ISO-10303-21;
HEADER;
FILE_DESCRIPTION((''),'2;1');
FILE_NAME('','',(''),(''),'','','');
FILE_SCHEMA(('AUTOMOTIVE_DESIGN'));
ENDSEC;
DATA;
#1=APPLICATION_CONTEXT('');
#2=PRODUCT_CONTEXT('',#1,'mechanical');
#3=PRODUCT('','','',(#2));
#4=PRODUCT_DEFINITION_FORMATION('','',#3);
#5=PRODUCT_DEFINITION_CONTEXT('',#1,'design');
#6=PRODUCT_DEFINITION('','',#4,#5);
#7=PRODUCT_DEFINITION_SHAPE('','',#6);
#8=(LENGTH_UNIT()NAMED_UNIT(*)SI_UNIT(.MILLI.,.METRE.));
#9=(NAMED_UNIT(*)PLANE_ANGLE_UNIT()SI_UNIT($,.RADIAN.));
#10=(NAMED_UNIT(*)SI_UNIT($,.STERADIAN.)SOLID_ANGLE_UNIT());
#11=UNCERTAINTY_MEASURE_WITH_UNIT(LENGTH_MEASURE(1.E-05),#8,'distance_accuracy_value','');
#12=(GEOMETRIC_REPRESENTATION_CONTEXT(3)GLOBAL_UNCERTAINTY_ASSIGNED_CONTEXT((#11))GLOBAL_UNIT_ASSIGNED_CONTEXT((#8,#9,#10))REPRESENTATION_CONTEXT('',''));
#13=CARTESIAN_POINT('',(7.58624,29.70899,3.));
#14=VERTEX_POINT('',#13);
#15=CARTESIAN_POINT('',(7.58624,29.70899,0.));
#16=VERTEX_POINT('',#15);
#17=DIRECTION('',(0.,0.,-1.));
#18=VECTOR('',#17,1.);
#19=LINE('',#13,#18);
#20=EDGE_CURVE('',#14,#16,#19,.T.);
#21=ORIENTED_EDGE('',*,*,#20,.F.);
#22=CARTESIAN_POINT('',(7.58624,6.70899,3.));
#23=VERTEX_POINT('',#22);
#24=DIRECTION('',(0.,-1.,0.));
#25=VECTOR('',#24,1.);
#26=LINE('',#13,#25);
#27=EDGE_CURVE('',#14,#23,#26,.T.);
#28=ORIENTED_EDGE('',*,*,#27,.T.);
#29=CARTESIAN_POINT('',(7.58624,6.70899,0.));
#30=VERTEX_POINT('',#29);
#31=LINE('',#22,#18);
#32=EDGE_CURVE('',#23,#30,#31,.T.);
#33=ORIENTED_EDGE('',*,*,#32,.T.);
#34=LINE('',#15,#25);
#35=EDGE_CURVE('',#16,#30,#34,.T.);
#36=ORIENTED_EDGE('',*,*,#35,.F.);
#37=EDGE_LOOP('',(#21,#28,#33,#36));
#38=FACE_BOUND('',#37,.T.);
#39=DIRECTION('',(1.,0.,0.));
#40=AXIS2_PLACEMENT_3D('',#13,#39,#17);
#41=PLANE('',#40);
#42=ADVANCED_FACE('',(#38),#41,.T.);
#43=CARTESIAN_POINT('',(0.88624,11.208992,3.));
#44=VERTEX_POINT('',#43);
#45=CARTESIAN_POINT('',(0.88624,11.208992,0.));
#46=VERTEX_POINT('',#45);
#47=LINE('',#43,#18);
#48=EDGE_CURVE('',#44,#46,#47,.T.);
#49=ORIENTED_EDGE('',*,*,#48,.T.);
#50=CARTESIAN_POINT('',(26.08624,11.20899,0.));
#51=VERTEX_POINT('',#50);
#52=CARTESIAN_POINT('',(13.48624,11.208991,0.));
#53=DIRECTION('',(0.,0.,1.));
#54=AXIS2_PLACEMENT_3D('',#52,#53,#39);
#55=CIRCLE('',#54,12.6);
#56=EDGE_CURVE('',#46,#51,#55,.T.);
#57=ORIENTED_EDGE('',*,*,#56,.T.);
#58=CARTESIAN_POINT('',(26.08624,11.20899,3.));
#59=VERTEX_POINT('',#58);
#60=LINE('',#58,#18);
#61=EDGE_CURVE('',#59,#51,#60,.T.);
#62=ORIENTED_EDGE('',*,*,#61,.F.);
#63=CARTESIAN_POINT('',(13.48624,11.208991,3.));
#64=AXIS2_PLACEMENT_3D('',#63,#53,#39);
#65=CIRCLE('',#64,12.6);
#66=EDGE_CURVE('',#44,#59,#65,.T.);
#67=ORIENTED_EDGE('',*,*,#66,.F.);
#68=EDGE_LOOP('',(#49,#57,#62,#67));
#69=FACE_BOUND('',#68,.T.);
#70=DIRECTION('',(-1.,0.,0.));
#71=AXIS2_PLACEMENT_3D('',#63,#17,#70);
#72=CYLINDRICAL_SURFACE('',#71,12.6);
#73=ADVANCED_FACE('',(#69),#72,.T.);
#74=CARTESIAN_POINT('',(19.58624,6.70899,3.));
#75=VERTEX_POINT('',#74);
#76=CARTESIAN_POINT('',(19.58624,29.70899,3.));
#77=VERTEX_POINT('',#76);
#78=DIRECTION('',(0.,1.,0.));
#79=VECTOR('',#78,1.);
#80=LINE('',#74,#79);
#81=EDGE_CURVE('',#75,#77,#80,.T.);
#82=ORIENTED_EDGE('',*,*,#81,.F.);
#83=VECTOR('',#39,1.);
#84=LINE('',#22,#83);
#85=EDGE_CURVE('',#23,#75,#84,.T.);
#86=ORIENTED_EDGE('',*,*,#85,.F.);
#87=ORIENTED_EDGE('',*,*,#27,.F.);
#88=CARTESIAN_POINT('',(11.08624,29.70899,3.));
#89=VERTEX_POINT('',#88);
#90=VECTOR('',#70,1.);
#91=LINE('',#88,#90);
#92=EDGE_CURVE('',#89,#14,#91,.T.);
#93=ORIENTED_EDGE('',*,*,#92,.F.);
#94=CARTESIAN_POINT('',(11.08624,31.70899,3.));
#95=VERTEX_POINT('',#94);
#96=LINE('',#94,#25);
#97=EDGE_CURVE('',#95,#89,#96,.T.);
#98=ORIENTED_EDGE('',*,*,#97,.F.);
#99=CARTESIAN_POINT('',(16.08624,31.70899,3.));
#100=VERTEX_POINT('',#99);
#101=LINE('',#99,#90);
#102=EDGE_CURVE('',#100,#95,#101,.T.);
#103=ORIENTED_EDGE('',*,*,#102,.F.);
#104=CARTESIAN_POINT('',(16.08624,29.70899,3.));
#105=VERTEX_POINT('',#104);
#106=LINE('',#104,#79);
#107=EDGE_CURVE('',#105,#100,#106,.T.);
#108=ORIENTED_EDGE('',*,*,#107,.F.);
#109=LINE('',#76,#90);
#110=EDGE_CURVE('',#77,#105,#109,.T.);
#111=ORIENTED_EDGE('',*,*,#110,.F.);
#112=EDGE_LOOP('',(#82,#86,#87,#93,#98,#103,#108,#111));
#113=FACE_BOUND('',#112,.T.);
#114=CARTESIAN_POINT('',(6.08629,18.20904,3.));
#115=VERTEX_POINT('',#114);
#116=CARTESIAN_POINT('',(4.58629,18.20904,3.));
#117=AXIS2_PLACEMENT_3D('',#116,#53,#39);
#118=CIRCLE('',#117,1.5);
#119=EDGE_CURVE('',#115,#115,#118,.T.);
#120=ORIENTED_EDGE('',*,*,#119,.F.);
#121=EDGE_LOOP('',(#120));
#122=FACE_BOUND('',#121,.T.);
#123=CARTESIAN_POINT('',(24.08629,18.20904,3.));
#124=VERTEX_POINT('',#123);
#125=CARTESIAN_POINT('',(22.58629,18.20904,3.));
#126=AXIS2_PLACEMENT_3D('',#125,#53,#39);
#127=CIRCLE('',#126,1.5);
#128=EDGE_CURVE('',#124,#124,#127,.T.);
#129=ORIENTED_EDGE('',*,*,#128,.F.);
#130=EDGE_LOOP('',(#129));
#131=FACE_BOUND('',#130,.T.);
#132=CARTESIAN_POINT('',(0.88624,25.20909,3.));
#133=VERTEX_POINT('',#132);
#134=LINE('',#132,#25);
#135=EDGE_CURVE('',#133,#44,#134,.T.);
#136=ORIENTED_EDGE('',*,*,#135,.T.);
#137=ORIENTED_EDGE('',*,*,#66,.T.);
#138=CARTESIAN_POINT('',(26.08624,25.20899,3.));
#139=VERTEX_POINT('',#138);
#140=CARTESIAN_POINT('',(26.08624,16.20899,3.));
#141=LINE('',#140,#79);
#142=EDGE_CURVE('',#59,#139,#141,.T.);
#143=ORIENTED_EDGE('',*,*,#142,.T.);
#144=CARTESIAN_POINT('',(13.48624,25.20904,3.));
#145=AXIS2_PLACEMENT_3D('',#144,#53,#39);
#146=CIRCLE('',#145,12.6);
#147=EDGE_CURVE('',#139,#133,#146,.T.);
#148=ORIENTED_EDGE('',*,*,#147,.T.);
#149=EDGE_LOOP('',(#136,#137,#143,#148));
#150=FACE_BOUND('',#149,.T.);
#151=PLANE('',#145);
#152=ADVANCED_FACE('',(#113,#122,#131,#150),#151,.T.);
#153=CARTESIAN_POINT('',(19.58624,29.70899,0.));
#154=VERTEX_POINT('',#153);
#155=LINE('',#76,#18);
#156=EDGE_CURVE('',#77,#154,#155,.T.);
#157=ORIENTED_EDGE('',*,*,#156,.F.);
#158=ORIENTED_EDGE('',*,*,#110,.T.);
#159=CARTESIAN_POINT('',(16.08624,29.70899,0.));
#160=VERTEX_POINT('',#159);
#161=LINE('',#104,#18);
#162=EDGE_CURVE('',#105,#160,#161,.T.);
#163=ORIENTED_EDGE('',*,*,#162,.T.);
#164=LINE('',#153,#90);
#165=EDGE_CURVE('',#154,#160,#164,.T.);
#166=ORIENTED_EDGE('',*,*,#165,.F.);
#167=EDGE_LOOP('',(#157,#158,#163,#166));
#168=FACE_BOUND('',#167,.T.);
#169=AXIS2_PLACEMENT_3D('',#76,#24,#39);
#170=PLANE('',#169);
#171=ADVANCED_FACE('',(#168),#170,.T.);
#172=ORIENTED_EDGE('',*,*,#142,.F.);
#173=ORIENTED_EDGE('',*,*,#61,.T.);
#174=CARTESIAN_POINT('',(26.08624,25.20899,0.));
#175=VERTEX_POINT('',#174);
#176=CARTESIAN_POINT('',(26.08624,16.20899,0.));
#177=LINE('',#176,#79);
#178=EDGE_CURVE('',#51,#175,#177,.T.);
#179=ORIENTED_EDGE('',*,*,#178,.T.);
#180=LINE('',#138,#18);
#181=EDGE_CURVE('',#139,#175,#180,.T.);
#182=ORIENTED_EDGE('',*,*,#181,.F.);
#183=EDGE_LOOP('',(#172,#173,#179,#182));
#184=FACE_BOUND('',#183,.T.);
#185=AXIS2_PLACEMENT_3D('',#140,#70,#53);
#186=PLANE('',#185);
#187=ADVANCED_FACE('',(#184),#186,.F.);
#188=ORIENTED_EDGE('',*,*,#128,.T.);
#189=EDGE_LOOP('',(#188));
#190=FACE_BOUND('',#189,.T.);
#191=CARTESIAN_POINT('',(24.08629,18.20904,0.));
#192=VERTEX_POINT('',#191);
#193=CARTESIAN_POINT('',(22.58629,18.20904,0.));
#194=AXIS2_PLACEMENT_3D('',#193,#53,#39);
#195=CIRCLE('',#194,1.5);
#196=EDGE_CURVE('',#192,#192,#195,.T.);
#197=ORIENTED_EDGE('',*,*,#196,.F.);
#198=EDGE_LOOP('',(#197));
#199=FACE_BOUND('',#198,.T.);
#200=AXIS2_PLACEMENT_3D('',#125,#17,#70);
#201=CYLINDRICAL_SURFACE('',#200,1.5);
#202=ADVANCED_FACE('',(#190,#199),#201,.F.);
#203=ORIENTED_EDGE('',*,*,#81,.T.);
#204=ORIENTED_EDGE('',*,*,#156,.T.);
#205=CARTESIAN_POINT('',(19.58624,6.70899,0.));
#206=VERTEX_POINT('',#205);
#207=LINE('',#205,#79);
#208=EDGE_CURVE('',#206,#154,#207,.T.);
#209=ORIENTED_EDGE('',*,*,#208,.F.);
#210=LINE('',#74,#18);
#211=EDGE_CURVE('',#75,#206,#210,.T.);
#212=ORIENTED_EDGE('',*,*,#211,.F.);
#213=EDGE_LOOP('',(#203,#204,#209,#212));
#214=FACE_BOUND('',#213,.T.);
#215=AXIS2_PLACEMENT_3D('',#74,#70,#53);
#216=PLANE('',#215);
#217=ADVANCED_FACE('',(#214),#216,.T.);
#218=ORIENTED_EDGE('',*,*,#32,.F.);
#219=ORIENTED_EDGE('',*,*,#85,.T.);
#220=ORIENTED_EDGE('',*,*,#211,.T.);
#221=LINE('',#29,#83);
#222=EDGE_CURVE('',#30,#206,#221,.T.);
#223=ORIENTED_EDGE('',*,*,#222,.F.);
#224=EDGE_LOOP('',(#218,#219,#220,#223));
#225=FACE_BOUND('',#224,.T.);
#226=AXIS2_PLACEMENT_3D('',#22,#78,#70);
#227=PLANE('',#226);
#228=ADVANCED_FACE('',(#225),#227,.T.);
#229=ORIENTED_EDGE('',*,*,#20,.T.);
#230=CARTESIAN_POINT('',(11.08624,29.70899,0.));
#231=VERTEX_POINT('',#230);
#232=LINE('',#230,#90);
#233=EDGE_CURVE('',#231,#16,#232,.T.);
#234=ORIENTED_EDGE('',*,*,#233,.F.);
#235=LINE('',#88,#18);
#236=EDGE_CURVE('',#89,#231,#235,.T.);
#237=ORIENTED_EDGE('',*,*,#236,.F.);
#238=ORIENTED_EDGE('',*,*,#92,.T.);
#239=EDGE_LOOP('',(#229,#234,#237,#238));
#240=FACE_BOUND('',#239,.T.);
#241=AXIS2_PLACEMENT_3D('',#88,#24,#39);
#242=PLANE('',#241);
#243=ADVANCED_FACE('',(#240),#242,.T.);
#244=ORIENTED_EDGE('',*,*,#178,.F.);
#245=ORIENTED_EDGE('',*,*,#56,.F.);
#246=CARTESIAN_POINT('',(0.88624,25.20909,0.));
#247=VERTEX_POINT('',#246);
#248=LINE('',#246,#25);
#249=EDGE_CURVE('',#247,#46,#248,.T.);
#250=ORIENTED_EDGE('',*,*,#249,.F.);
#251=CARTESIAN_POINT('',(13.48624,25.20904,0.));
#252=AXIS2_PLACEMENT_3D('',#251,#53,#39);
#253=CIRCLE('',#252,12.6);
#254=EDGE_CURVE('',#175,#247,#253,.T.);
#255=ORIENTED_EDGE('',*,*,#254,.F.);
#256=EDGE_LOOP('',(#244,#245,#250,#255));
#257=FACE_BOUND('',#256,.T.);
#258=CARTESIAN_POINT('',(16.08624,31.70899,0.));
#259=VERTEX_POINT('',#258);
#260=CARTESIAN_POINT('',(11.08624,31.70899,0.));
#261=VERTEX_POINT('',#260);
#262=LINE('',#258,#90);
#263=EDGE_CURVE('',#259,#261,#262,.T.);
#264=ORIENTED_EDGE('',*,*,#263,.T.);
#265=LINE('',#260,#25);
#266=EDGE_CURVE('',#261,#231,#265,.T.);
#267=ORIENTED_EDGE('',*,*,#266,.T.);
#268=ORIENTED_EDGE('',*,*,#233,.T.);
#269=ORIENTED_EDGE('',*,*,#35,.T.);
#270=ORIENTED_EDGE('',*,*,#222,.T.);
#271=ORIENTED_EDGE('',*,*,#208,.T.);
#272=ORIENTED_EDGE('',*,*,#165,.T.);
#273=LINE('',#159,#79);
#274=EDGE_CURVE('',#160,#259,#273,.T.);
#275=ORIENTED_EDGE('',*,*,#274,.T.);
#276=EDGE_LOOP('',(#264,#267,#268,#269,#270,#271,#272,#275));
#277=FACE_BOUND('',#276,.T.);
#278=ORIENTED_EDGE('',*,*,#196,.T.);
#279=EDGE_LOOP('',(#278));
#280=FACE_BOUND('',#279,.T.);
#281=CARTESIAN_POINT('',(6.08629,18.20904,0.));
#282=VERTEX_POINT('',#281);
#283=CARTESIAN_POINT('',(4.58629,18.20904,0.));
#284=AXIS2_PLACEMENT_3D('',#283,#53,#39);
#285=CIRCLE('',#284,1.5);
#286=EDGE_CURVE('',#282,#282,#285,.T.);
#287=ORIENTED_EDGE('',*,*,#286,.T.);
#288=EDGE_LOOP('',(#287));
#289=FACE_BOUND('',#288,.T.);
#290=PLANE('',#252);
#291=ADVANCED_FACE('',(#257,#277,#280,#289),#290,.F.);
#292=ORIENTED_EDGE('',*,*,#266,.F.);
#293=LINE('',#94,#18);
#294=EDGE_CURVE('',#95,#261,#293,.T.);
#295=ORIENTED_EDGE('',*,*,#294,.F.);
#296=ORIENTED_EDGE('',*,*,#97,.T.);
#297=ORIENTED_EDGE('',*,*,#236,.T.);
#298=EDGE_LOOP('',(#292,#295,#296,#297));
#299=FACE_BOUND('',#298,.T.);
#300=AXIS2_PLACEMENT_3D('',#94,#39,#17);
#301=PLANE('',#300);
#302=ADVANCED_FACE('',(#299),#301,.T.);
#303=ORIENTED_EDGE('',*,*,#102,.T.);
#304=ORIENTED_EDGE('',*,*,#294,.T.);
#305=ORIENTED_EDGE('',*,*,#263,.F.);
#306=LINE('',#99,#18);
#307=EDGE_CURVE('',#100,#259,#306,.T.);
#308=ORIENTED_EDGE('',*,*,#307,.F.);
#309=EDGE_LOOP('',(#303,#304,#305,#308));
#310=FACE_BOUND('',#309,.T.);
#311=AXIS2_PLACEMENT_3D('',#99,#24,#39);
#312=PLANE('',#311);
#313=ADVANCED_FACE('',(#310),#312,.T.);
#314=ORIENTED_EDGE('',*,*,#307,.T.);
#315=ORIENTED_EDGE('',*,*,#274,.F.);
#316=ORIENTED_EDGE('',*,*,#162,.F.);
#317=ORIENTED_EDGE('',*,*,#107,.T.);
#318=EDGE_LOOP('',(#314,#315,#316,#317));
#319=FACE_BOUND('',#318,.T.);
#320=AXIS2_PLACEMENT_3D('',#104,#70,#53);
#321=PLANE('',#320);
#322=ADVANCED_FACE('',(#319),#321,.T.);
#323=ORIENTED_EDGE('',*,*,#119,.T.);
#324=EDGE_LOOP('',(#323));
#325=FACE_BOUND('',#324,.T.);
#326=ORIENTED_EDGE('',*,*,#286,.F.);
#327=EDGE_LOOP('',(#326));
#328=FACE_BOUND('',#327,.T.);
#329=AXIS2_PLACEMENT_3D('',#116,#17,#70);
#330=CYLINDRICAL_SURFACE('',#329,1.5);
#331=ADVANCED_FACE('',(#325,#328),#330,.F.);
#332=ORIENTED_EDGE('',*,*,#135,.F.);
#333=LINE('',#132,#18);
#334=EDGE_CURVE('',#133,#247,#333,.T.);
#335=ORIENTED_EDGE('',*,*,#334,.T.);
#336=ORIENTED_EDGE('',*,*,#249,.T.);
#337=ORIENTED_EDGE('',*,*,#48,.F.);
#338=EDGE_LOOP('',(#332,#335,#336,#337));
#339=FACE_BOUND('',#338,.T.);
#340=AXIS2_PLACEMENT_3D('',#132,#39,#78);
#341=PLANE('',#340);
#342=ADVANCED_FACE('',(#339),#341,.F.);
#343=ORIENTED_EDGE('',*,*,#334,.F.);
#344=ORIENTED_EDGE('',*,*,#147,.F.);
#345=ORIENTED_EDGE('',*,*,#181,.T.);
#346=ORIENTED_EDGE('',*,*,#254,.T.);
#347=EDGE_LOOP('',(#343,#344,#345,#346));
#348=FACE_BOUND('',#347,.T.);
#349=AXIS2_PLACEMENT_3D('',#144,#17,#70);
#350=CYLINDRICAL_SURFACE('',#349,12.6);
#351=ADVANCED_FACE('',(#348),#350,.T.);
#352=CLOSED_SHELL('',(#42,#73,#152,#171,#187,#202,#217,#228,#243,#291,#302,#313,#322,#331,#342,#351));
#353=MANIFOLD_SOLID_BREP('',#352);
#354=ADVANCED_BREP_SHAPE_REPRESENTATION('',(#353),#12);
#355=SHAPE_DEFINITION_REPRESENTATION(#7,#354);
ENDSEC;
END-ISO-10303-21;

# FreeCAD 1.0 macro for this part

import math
import FreeCAD as App
import Part
import Sketcher
from FreeCAD import Vector
Q = App.Units.Quantity

doc = App.newDocument("Part")
body = doc.addObject("PartDesign::Body", "Body")

# Sketch on XY plane
sketch1 = body.newObject("Sketcher::SketchObject", "Sketch")
sketch1.AttachmentSupport = (doc.getObject("XY_Plane"), [""])
sketch1.MapMode = "FlatFace"
sketch1.addGeometry([
    Part.LineSegment(Vector(0.9, 25.2, 0), Vector(0.9, 11.2, 0)),  # 0
    Part.ArcOfCircle(Part.Circle(Vector(13.5, 11.2, 0), Vector(0, 0, 1), 12.6), math.radians(180), math.radians(360)),  # 1
    Part.LineSegment(Vector(26.1, 11.2, 0), Vector(26.1, 25.2, 0)),  # 2
    Part.ArcOfCircle(Part.Circle(Vector(13.5, 25.2, 0), Vector(0, 0, 1), 12.6), math.radians(0), math.radians(180)),  # 3
    Part.Circle(Vector(4.6, 18.2, 0), Vector(0, 0, 1), 1.5),  # 4
    Part.Circle(Vector(22.6, 18.2, 0), Vector(0, 0, 1), 1.5),  # 5
    Part.LineSegment(Vector(19.6, 29.7, 0), Vector(19.6, 6.7, 0)),  # 6
    Part.LineSegment(Vector(19.6, 6.7, 0), Vector(7.6, 6.7, 0)),  # 7
    Part.LineSegment(Vector(7.6, 6.7, 0), Vector(7.6, 29.7, 0)),  # 8
    Part.LineSegment(Vector(7.6, 29.7, 0), Vector(11.1, 29.7, 0)),  # 9
    Part.LineSegment(Vector(11.1, 29.7, 0), Vector(11.1, 31.7, 0)),  # 10
    Part.LineSegment(Vector(11.1, 31.7, 0), Vector(16.1, 31.7, 0)),  # 11
    Part.LineSegment(Vector(16.1, 31.7, 0), Vector(16.1, 29.7, 0)),  # 12
    Part.LineSegment(Vector(16.1, 29.7, 0), Vector(19.6, 29.7, 0)),  # 13
], False)
sketch1.addConstraint([
    Sketcher.Constraint("Tangent", 0, 2, 1, 1),
    Sketcher.Constraint("Tangent", 1, 2, 2, 1),
    Sketcher.Constraint("Coincident", 2, 2, 3, 1),
    Sketcher.Constraint("Coincident", 3, 2, 0, 1),
    Sketcher.Constraint("Coincident", 6, 2, 7, 1),
    Sketcher.Constraint("Coincident", 7, 2, 8, 1),
    Sketcher.Constraint("Coincident", 8, 2, 9, 1),
    Sketcher.Constraint("Coincident", 9, 2, 10, 1),
    Sketcher.Constraint("Coincident", 10, 2, 11, 1),
    Sketcher.Constraint("Coincident", 11, 2, 12, 1),
    Sketcher.Constraint("Coincident", 12, 2, 13, 1),
    Sketcher.Constraint("Coincident", 13, 2, 6, 1),
    Sketcher.Constraint("Vertical", 0),
    Sketcher.Constraint("Vertical", 2),
    Sketcher.Constraint("Vertical", 6),
    Sketcher.Constraint("Horizontal", 7),
    Sketcher.Constraint("Vertical", 8),
    Sketcher.Constraint("Horizontal", 9),
    Sketcher.Constraint("Vertical", 10),
    Sketcher.Constraint("Horizontal", 11),
    Sketcher.Constraint("Vertical", 12),
    Sketcher.Constraint("Horizontal", 13),
    Sketcher.Constraint("Equal", 4, 5),
    Sketcher.Constraint("Horizontal", 4, 3, 5, 3),
    Sketcher.Constraint("Horizontal", 9, 2, 12, 2),
    Sketcher.Constraint("Equal", 9, 13),
    Sketcher.Constraint("Diameter", 4, Q("3 mm")),
    Sketcher.Constraint("Radius", 1, Q("12.6 mm")),
    Sketcher.Constraint("DistanceX", 7, 2, 7, 1, Q("12 mm")),
    Sketcher.Constraint("DistanceX", 11, 1, 11, 2, Q("5 mm")),
    Sketcher.Constraint("DistanceY", 2, 1, 2, 2, Q("14 mm")),
    Sketcher.Constraint("DistanceY", 6, 2, 6, 1, Q("23 mm")),
    Sketcher.Constraint("DistanceY", 10, 1, 10, 2, Q("2 mm")),
    Sketcher.Constraint("DistanceY", 4, 3, 3, 3, Q("7 mm")),
    Sketcher.Constraint("DistanceX", 4, 3, 5, 3, Q("18 mm")),
    Sketcher.Constraint("DistanceX", 9, 2, 2, 2, Q("15 mm")),
    Sketcher.Constraint("DistanceY", 6, 2, 1, 3, Q("4.500001 mm")),
    Sketcher.Constraint("DistanceY", 1, 3, 3, 2, Q("14.000099 mm")),
    Sketcher.Constraint("DistanceX", -1, 1, 1, 3, Q("13.48624 mm")),
    Sketcher.Constraint("DistanceY", -1, 1, 1, 3, Q("11.208991 mm")),
    Sketcher.Constraint("DistanceY", -1, 1, 3, 3, Q("25.20904 mm")),
    Sketcher.Constraint("DistanceX", -1, 1, 4, 3, Q("4.58629 mm")),
])
pad1 = body.newObject("PartDesign::Pad", "Pad")
pad1.Profile = sketch1
pad1.Length = 3

doc.recompute()
